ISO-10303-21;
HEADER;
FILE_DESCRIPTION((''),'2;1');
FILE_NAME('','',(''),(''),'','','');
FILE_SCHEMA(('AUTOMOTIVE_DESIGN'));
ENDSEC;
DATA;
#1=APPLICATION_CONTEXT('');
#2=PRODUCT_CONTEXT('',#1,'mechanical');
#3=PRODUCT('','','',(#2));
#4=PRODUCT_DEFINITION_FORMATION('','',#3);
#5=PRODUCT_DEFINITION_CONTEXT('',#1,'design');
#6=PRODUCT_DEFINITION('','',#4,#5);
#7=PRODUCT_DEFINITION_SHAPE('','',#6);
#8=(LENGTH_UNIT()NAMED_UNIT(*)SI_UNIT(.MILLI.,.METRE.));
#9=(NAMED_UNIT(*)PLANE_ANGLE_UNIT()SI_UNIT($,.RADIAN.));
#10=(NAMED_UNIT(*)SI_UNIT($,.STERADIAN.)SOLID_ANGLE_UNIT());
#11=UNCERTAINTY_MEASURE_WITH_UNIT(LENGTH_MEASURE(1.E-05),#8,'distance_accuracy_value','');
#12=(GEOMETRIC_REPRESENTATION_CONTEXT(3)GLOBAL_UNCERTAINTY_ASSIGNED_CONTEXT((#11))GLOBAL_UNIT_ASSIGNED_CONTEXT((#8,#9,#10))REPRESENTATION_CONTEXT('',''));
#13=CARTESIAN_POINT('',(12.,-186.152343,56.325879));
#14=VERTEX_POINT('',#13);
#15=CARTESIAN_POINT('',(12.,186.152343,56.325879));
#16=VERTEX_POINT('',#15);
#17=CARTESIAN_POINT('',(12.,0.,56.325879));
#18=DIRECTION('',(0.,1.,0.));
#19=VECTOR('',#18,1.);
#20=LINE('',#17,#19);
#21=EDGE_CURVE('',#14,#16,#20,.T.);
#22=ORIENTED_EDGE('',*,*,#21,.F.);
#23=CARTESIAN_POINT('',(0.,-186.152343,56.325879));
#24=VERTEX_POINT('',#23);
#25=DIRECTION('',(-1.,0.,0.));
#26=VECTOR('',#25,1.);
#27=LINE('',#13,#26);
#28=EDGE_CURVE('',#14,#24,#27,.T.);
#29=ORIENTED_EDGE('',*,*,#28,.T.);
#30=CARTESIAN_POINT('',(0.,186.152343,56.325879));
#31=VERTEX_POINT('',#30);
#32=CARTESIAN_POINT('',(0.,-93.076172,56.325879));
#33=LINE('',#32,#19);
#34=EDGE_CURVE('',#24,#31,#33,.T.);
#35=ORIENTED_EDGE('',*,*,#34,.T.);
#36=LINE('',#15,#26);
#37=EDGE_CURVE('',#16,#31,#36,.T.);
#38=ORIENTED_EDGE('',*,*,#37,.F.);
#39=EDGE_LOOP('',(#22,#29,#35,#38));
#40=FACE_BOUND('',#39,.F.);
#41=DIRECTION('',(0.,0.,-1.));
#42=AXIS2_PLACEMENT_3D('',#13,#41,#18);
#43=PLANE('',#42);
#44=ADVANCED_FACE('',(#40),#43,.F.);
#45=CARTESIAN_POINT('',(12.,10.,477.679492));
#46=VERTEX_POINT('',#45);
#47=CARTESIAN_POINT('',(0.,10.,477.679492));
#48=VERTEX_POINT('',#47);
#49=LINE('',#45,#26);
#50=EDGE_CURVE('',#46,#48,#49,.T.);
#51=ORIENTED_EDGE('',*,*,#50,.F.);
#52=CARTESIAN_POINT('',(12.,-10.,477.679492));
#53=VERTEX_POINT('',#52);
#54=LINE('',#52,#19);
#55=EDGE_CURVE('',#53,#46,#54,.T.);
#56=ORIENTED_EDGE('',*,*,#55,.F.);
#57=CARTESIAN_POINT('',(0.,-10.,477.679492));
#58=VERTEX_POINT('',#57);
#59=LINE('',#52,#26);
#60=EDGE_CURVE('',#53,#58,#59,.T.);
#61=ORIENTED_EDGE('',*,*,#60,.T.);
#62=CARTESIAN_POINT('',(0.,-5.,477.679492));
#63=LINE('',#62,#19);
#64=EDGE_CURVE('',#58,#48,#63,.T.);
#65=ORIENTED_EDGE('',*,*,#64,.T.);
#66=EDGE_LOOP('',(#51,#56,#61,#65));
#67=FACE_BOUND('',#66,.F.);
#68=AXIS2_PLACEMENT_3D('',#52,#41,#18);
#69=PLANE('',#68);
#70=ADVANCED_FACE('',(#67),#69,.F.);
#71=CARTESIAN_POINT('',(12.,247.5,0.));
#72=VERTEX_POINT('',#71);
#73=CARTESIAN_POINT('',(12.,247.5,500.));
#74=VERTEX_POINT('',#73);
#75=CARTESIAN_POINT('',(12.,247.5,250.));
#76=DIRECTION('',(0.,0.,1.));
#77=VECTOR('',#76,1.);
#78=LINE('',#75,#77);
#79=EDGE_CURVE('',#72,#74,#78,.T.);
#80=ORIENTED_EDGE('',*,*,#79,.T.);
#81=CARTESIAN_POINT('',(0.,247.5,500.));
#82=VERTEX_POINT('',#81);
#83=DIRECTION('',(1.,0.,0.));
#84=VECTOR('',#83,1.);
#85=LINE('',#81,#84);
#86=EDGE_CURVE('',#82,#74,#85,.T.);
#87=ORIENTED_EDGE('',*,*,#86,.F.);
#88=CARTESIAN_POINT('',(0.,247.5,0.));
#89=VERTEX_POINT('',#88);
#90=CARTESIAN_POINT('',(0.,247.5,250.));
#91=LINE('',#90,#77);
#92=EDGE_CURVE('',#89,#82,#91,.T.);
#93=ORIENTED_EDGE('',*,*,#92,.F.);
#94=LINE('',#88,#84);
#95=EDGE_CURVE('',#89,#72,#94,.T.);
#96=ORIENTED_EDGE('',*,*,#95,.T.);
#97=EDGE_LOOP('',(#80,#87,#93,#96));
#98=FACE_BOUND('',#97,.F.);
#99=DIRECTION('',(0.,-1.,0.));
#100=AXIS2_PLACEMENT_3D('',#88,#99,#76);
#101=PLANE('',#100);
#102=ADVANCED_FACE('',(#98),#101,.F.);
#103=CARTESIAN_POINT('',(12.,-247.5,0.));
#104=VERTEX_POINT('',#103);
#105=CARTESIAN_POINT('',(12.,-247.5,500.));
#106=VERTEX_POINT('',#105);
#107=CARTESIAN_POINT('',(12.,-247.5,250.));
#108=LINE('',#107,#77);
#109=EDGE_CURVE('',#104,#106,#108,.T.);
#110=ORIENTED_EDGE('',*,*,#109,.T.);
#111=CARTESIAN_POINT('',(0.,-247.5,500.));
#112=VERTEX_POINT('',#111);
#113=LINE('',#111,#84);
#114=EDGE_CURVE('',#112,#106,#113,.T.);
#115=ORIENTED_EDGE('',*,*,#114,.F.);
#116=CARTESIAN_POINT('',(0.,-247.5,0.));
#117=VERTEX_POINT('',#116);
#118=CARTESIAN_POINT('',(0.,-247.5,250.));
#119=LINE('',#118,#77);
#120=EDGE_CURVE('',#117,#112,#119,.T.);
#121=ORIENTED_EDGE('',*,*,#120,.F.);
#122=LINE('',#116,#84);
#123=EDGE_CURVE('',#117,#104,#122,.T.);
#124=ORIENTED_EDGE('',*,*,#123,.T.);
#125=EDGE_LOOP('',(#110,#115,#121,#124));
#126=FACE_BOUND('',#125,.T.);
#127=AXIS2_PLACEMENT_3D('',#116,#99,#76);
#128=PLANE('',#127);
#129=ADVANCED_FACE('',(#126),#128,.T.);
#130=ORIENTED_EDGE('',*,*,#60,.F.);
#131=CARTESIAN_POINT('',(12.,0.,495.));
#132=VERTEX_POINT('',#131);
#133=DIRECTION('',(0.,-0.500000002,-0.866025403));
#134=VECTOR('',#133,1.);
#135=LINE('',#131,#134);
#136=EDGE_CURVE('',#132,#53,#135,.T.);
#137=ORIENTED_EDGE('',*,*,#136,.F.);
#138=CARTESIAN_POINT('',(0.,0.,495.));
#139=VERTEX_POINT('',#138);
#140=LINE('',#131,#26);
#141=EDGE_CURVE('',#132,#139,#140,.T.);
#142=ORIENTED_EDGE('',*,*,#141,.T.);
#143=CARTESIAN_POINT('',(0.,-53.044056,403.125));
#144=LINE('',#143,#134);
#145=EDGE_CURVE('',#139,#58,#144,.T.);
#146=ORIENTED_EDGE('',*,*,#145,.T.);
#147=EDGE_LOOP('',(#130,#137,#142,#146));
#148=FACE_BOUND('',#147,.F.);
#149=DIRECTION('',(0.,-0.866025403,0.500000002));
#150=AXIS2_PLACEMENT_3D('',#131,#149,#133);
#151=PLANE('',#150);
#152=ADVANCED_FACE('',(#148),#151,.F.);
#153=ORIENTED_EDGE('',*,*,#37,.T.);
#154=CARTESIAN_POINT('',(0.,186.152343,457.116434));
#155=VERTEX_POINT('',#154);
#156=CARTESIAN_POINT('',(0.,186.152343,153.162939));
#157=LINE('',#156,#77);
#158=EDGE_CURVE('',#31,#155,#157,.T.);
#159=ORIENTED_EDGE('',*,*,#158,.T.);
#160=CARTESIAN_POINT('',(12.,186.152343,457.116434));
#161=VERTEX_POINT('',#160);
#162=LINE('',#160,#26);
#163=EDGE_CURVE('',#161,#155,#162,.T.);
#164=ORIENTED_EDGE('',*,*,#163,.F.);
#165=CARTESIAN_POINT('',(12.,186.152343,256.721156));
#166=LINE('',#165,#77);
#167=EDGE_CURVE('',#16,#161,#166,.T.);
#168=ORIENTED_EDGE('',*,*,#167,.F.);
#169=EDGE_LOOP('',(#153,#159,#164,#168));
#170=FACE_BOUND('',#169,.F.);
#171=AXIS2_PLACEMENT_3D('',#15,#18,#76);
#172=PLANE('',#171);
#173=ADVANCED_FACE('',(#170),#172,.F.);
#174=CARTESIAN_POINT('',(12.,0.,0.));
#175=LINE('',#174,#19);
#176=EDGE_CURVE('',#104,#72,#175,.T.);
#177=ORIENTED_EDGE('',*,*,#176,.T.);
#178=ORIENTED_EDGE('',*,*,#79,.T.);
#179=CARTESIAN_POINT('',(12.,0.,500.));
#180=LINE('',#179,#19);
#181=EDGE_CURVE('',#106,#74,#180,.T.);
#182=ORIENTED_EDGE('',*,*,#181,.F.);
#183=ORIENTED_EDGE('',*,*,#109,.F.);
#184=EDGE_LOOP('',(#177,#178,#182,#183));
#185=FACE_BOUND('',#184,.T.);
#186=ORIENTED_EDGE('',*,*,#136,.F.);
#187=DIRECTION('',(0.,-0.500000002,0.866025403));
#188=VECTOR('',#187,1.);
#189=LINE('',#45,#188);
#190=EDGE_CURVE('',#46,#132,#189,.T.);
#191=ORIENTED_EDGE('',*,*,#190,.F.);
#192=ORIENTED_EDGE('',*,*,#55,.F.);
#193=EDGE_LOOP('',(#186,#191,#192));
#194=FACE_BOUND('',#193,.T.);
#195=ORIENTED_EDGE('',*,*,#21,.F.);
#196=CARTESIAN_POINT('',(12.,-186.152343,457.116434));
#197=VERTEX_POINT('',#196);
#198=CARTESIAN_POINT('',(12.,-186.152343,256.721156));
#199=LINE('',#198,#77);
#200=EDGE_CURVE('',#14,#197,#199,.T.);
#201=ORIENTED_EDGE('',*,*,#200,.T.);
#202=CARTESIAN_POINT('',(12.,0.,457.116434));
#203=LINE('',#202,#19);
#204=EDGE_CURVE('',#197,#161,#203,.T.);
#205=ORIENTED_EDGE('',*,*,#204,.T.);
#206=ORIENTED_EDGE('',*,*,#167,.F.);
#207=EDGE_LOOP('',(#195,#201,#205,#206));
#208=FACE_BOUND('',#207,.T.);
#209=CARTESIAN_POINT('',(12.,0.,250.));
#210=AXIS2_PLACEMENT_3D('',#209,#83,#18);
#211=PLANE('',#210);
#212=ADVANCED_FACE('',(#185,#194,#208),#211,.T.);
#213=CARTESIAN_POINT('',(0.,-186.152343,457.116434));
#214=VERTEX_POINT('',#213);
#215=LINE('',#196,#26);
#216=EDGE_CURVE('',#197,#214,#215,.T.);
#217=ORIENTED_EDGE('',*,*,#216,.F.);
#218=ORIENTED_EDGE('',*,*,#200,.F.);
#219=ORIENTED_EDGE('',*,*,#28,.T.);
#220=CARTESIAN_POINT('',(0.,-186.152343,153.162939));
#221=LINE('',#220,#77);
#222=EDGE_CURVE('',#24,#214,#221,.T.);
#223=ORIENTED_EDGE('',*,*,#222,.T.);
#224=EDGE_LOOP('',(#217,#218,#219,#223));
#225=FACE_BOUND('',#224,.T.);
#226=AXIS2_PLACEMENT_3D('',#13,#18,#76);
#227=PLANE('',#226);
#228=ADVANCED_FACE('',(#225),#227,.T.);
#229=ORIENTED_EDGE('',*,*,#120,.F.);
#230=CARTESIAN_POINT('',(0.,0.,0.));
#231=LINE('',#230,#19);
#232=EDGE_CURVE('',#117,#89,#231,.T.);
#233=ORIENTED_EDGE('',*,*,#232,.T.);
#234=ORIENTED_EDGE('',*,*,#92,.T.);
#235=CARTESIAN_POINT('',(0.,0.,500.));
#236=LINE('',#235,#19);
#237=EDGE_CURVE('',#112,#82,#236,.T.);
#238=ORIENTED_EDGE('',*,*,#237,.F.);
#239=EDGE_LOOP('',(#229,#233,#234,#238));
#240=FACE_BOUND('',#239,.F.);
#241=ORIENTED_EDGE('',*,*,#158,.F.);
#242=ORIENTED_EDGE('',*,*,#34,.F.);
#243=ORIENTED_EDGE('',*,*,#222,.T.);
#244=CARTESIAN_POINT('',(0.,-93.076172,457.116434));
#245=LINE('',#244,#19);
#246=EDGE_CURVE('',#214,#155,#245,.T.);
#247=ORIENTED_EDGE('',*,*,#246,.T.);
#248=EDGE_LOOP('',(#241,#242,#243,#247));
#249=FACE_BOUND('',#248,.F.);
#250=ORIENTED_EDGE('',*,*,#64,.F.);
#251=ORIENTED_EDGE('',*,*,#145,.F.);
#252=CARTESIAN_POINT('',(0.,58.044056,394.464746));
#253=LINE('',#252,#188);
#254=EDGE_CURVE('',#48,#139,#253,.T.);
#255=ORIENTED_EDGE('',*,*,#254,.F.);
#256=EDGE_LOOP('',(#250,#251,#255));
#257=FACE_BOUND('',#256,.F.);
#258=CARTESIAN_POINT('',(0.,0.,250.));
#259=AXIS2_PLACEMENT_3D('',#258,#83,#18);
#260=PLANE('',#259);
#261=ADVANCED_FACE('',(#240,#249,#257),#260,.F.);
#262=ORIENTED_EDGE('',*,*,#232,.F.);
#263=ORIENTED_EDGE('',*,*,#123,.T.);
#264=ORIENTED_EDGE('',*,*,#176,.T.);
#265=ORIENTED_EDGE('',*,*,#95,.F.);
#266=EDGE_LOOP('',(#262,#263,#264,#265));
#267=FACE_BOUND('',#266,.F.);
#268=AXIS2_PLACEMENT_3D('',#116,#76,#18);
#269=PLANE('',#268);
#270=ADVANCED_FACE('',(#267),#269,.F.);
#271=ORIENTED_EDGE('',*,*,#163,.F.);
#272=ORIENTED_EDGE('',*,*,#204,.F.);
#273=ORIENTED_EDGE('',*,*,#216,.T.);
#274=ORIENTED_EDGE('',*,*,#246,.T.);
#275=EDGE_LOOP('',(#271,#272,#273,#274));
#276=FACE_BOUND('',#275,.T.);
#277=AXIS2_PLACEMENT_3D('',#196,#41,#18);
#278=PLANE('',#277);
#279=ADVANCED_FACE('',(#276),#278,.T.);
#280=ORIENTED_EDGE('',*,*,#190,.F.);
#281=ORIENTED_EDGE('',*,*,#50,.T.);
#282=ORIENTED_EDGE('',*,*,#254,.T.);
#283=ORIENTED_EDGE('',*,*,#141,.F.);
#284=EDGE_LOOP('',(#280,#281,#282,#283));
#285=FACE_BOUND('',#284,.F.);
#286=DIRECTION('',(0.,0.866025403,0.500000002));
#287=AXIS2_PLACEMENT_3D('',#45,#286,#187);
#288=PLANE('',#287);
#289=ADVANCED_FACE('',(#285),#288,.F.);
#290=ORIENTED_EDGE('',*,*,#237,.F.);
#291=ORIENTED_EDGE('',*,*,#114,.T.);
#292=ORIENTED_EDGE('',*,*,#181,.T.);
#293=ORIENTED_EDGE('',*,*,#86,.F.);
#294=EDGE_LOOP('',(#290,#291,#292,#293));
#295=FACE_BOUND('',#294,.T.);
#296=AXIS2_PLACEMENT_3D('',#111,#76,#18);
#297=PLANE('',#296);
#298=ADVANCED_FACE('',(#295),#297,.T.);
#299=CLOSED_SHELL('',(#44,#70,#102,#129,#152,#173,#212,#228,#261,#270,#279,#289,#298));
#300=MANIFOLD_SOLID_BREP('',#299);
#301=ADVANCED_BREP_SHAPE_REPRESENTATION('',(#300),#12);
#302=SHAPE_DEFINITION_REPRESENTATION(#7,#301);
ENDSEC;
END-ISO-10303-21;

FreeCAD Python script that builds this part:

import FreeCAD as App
import Part
import Sketcher

V = App.Vector
Q = App.Units.Quantity


def add_polygon(sketch, points):
    """Adds a closed chain of lines whose ends are joined by coincident constraints."""
    first, n = sketch.GeometryCount, len(points)
    for a, b in zip(points, points[1:] + points[:1]):
        sketch.addGeometry(Part.LineSegment(App.Vector(*a, 0), App.Vector(*b, 0)), False)
    for i in range(n):
        sketch.addConstraint(Sketcher.Constraint("Coincident", first + i, 2, first + (i + 1) % n, 1))

doc = App.newDocument("Part")
body = doc.addObject("PartDesign::Body", "Body")

# Sketch on YZ plane
sketch1 = body.newObject("Sketcher::SketchObject", "Sketch")
sketch1.AttachmentSupport = (doc.getObject("YZ_Plane"), [""])
sketch1.MapMode = "FlatFace"
add_polygon(sketch1, [(-248, 500), (-248, 0), (248, 0), (248, 500)])  # lines 0-3
sketch1.addConstraint(Sketcher.Constraint("Vertical", 0))
sketch1.addConstraint(Sketcher.Constraint("Horizontal", 1))
sketch1.addConstraint(Sketcher.Constraint("Vertical", 2))
sketch1.addConstraint(Sketcher.Constraint("Horizontal", 3))
sketch1.addConstraint(Sketcher.Constraint("Symmetric", 0, 2, 1, 2, -1, 1))
sketch1.addConstraint(Sketcher.Constraint("DistanceX", 1, 1, 1, 2, 495.0))
sketch1.addConstraint(Sketcher.Constraint("DistanceY", 0, 2, 0, 1, 500.0))
pad1 = body.newObject("PartDesign::Pad", "Pad")
pad1.Profile = sketch1
pad1.Length = 12

# Sketch on YZ plane
sketch2 = body.newObject("Sketcher::SketchObject", "Sketch001")
sketch2.AttachmentSupport = (doc.getObject("YZ_Plane"), [""])
sketch2.MapMode = "FlatFace"
sketch2.AttachmentOffset = App.Placement(V(0, 0, 12), App.Rotation())
add_polygon(sketch2, [(0, 495), (-10, 478), (10, 478)])  # lines 0-2
add_polygon(sketch2, [(-186, 457), (-186, 56), (186, 56), (186, 457)])  # lines 3-6
sketch2.addConstraint(Sketcher.Constraint("Horizontal", 1))
sketch2.addConstraint(Sketcher.Constraint("Vertical", 3))
sketch2.addConstraint(Sketcher.Constraint("Horizontal", 4))
sketch2.addConstraint(Sketcher.Constraint("Vertical", 5))
sketch2.addConstraint(Sketcher.Constraint("Horizontal", 6))
sketch2.addConstraint(Sketcher.Constraint("PointOnObject", 2, 2, -2))
sketch2.addConstraint(Sketcher.Constraint("Equal", 0, 2))
sketch2.addConstraint(Sketcher.Constraint("DistanceX", 1, 1, 1, 2, 20.0))
sketch2.addConstraint(Sketcher.Constraint("Angle", 0, Q("-120 deg")))
sketch2.addConstraint(Sketcher.Constraint("DistanceY", -1, 1, 2, 2, 495.0))
sketch2.addConstraint(Sketcher.Constraint("DistanceX", 4, 1, 4, 2, 372.304686))
sketch2.addConstraint(Sketcher.Constraint("DistanceY", 3, 2, 3, 1, 400.790555))
sketch2.addConstraint(Sketcher.Constraint("DistanceY", -1, 1, 3, 2, 56.325879))
sketch2.addConstraint(Sketcher.Constraint("DistanceX", 3, 2, -1, 1, 186.152343))
pocket1 = body.newObject("PartDesign::Pocket", "Pocket")
pocket1.Profile = sketch2
pocket1.Type = "ThroughAll"

doc.recompute()
